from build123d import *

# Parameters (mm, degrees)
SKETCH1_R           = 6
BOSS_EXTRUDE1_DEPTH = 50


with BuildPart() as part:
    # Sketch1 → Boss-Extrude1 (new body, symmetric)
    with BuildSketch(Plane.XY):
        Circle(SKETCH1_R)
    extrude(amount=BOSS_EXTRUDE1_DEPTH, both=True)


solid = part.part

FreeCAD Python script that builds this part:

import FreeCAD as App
import Part
import Sketcher

V = App.Vector
Q = App.Units.Quantity

doc = App.newDocument("Part")
body = doc.addObject("PartDesign::Body", "Body")

# Sketch on XY plane
sketch1 = body.newObject("Sketcher::SketchObject", "Sketch")
sketch1.AttachmentSupport = (doc.getObject("XY_Plane"), [""])
sketch1.MapMode = "FlatFace"
sketch1.addGeometry(Part.Circle(V(0, 0, 0), V(0, 0, 1), 6), False)
sketch1.addConstraint([
    Sketcher.Constraint("Coincident", 0, 3, -1, 1),
    Sketcher.Constraint("Diameter", 0, Q("12 mm")),
])
pad1 = body.newObject("PartDesign::Pad", "Pad")
pad1.Profile = sketch1
pad1.Length = 100
pad1.Midplane = True

doc.recompute()
